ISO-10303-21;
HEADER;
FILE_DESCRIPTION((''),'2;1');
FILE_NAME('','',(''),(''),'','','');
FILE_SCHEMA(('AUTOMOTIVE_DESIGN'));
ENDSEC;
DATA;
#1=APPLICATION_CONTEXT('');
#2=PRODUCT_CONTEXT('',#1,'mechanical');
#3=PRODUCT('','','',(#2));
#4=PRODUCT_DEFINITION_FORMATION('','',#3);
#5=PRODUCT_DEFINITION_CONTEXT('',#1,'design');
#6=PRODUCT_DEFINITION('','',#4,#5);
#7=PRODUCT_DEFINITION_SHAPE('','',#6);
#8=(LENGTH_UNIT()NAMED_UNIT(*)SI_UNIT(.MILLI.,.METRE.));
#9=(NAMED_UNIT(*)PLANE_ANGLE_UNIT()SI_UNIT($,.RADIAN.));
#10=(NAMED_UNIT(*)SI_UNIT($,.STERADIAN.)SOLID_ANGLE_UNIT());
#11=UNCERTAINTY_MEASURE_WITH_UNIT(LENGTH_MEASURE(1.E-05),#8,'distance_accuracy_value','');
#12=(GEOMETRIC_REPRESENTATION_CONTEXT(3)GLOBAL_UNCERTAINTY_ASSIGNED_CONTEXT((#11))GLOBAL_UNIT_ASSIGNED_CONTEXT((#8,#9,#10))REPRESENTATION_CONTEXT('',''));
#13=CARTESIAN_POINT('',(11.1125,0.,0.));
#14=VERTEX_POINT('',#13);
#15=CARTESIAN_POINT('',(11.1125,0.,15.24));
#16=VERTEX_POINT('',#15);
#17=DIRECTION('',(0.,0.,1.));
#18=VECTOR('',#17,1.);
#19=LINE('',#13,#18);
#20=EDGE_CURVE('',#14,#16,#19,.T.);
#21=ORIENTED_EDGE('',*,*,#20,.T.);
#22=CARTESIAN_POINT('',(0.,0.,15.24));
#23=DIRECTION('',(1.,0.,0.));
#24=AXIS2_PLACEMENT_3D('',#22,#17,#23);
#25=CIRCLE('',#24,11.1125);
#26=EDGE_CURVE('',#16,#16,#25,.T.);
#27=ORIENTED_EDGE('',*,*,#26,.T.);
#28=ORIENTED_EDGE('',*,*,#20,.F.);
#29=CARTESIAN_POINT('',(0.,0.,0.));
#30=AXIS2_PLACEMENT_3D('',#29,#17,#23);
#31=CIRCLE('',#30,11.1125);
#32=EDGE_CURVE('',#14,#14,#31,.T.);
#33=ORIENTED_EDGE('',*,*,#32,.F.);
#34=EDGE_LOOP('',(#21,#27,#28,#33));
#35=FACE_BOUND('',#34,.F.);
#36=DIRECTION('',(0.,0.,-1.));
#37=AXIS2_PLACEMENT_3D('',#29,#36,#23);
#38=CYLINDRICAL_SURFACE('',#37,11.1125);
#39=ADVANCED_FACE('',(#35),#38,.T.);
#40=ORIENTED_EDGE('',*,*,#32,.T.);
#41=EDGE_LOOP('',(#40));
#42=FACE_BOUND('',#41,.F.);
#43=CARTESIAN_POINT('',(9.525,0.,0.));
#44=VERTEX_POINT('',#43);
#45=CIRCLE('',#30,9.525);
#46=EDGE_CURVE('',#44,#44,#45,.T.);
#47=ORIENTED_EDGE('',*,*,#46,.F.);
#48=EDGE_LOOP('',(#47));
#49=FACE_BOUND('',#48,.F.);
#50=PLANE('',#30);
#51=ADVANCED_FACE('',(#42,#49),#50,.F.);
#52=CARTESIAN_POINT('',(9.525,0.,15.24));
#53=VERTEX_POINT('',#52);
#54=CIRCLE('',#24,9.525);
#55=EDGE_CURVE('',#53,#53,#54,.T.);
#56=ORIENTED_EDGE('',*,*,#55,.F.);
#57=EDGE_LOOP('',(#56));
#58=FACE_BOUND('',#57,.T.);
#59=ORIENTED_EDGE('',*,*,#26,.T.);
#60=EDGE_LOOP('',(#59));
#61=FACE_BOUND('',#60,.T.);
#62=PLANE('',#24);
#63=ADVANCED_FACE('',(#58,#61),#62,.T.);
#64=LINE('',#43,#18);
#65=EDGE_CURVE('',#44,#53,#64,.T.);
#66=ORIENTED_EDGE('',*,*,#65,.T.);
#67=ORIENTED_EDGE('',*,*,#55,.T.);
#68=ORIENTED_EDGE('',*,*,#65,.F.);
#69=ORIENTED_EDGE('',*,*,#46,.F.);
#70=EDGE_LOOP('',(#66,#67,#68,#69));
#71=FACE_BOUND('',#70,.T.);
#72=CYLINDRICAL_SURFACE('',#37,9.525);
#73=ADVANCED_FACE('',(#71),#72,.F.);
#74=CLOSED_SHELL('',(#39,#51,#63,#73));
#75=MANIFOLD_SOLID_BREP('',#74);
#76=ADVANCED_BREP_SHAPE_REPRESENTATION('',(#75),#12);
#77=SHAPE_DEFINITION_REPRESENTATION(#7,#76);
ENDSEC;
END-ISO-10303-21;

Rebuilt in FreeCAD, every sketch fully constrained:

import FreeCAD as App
import Part
import Sketcher
Q = App.Units.Quantity

doc = App.newDocument("Part")
body = doc.addObject("PartDesign::Body", "Body")

sketch1 = body.newObject("Sketcher::SketchObject", "Sketch")
sketch1.AttachmentSupport = (doc.getObject("XY_Plane"), [""])
sketch1.MapMode = "FlatFace"
sketch1.addGeometry(Part.Circle(App.Vector(0, 0, 0), App.Vector(0, 0, 1), 11.1125), False)
sketch1.addGeometry(Part.Circle(App.Vector(0, 0, 0), App.Vector(0, 0, 1), 9.525), False)
sketch1.addConstraint(Sketcher.Constraint("Coincident", 0, 3, -1, 1))
sketch1.addConstraint(Sketcher.Constraint("Coincident", 1, 3, -1, 1))
sketch1.addConstraint(Sketcher.Constraint("Diameter", 1, Q("0.75 in")))
sketch1.addConstraint(Sketcher.Constraint("Diameter", 0, Q("0.875 in")))
pad1 = body.newObject("PartDesign::Pad", "Pad")
pad1.Profile = sketch1
pad1.Length = Q("0.6 in")

doc.recompute()
